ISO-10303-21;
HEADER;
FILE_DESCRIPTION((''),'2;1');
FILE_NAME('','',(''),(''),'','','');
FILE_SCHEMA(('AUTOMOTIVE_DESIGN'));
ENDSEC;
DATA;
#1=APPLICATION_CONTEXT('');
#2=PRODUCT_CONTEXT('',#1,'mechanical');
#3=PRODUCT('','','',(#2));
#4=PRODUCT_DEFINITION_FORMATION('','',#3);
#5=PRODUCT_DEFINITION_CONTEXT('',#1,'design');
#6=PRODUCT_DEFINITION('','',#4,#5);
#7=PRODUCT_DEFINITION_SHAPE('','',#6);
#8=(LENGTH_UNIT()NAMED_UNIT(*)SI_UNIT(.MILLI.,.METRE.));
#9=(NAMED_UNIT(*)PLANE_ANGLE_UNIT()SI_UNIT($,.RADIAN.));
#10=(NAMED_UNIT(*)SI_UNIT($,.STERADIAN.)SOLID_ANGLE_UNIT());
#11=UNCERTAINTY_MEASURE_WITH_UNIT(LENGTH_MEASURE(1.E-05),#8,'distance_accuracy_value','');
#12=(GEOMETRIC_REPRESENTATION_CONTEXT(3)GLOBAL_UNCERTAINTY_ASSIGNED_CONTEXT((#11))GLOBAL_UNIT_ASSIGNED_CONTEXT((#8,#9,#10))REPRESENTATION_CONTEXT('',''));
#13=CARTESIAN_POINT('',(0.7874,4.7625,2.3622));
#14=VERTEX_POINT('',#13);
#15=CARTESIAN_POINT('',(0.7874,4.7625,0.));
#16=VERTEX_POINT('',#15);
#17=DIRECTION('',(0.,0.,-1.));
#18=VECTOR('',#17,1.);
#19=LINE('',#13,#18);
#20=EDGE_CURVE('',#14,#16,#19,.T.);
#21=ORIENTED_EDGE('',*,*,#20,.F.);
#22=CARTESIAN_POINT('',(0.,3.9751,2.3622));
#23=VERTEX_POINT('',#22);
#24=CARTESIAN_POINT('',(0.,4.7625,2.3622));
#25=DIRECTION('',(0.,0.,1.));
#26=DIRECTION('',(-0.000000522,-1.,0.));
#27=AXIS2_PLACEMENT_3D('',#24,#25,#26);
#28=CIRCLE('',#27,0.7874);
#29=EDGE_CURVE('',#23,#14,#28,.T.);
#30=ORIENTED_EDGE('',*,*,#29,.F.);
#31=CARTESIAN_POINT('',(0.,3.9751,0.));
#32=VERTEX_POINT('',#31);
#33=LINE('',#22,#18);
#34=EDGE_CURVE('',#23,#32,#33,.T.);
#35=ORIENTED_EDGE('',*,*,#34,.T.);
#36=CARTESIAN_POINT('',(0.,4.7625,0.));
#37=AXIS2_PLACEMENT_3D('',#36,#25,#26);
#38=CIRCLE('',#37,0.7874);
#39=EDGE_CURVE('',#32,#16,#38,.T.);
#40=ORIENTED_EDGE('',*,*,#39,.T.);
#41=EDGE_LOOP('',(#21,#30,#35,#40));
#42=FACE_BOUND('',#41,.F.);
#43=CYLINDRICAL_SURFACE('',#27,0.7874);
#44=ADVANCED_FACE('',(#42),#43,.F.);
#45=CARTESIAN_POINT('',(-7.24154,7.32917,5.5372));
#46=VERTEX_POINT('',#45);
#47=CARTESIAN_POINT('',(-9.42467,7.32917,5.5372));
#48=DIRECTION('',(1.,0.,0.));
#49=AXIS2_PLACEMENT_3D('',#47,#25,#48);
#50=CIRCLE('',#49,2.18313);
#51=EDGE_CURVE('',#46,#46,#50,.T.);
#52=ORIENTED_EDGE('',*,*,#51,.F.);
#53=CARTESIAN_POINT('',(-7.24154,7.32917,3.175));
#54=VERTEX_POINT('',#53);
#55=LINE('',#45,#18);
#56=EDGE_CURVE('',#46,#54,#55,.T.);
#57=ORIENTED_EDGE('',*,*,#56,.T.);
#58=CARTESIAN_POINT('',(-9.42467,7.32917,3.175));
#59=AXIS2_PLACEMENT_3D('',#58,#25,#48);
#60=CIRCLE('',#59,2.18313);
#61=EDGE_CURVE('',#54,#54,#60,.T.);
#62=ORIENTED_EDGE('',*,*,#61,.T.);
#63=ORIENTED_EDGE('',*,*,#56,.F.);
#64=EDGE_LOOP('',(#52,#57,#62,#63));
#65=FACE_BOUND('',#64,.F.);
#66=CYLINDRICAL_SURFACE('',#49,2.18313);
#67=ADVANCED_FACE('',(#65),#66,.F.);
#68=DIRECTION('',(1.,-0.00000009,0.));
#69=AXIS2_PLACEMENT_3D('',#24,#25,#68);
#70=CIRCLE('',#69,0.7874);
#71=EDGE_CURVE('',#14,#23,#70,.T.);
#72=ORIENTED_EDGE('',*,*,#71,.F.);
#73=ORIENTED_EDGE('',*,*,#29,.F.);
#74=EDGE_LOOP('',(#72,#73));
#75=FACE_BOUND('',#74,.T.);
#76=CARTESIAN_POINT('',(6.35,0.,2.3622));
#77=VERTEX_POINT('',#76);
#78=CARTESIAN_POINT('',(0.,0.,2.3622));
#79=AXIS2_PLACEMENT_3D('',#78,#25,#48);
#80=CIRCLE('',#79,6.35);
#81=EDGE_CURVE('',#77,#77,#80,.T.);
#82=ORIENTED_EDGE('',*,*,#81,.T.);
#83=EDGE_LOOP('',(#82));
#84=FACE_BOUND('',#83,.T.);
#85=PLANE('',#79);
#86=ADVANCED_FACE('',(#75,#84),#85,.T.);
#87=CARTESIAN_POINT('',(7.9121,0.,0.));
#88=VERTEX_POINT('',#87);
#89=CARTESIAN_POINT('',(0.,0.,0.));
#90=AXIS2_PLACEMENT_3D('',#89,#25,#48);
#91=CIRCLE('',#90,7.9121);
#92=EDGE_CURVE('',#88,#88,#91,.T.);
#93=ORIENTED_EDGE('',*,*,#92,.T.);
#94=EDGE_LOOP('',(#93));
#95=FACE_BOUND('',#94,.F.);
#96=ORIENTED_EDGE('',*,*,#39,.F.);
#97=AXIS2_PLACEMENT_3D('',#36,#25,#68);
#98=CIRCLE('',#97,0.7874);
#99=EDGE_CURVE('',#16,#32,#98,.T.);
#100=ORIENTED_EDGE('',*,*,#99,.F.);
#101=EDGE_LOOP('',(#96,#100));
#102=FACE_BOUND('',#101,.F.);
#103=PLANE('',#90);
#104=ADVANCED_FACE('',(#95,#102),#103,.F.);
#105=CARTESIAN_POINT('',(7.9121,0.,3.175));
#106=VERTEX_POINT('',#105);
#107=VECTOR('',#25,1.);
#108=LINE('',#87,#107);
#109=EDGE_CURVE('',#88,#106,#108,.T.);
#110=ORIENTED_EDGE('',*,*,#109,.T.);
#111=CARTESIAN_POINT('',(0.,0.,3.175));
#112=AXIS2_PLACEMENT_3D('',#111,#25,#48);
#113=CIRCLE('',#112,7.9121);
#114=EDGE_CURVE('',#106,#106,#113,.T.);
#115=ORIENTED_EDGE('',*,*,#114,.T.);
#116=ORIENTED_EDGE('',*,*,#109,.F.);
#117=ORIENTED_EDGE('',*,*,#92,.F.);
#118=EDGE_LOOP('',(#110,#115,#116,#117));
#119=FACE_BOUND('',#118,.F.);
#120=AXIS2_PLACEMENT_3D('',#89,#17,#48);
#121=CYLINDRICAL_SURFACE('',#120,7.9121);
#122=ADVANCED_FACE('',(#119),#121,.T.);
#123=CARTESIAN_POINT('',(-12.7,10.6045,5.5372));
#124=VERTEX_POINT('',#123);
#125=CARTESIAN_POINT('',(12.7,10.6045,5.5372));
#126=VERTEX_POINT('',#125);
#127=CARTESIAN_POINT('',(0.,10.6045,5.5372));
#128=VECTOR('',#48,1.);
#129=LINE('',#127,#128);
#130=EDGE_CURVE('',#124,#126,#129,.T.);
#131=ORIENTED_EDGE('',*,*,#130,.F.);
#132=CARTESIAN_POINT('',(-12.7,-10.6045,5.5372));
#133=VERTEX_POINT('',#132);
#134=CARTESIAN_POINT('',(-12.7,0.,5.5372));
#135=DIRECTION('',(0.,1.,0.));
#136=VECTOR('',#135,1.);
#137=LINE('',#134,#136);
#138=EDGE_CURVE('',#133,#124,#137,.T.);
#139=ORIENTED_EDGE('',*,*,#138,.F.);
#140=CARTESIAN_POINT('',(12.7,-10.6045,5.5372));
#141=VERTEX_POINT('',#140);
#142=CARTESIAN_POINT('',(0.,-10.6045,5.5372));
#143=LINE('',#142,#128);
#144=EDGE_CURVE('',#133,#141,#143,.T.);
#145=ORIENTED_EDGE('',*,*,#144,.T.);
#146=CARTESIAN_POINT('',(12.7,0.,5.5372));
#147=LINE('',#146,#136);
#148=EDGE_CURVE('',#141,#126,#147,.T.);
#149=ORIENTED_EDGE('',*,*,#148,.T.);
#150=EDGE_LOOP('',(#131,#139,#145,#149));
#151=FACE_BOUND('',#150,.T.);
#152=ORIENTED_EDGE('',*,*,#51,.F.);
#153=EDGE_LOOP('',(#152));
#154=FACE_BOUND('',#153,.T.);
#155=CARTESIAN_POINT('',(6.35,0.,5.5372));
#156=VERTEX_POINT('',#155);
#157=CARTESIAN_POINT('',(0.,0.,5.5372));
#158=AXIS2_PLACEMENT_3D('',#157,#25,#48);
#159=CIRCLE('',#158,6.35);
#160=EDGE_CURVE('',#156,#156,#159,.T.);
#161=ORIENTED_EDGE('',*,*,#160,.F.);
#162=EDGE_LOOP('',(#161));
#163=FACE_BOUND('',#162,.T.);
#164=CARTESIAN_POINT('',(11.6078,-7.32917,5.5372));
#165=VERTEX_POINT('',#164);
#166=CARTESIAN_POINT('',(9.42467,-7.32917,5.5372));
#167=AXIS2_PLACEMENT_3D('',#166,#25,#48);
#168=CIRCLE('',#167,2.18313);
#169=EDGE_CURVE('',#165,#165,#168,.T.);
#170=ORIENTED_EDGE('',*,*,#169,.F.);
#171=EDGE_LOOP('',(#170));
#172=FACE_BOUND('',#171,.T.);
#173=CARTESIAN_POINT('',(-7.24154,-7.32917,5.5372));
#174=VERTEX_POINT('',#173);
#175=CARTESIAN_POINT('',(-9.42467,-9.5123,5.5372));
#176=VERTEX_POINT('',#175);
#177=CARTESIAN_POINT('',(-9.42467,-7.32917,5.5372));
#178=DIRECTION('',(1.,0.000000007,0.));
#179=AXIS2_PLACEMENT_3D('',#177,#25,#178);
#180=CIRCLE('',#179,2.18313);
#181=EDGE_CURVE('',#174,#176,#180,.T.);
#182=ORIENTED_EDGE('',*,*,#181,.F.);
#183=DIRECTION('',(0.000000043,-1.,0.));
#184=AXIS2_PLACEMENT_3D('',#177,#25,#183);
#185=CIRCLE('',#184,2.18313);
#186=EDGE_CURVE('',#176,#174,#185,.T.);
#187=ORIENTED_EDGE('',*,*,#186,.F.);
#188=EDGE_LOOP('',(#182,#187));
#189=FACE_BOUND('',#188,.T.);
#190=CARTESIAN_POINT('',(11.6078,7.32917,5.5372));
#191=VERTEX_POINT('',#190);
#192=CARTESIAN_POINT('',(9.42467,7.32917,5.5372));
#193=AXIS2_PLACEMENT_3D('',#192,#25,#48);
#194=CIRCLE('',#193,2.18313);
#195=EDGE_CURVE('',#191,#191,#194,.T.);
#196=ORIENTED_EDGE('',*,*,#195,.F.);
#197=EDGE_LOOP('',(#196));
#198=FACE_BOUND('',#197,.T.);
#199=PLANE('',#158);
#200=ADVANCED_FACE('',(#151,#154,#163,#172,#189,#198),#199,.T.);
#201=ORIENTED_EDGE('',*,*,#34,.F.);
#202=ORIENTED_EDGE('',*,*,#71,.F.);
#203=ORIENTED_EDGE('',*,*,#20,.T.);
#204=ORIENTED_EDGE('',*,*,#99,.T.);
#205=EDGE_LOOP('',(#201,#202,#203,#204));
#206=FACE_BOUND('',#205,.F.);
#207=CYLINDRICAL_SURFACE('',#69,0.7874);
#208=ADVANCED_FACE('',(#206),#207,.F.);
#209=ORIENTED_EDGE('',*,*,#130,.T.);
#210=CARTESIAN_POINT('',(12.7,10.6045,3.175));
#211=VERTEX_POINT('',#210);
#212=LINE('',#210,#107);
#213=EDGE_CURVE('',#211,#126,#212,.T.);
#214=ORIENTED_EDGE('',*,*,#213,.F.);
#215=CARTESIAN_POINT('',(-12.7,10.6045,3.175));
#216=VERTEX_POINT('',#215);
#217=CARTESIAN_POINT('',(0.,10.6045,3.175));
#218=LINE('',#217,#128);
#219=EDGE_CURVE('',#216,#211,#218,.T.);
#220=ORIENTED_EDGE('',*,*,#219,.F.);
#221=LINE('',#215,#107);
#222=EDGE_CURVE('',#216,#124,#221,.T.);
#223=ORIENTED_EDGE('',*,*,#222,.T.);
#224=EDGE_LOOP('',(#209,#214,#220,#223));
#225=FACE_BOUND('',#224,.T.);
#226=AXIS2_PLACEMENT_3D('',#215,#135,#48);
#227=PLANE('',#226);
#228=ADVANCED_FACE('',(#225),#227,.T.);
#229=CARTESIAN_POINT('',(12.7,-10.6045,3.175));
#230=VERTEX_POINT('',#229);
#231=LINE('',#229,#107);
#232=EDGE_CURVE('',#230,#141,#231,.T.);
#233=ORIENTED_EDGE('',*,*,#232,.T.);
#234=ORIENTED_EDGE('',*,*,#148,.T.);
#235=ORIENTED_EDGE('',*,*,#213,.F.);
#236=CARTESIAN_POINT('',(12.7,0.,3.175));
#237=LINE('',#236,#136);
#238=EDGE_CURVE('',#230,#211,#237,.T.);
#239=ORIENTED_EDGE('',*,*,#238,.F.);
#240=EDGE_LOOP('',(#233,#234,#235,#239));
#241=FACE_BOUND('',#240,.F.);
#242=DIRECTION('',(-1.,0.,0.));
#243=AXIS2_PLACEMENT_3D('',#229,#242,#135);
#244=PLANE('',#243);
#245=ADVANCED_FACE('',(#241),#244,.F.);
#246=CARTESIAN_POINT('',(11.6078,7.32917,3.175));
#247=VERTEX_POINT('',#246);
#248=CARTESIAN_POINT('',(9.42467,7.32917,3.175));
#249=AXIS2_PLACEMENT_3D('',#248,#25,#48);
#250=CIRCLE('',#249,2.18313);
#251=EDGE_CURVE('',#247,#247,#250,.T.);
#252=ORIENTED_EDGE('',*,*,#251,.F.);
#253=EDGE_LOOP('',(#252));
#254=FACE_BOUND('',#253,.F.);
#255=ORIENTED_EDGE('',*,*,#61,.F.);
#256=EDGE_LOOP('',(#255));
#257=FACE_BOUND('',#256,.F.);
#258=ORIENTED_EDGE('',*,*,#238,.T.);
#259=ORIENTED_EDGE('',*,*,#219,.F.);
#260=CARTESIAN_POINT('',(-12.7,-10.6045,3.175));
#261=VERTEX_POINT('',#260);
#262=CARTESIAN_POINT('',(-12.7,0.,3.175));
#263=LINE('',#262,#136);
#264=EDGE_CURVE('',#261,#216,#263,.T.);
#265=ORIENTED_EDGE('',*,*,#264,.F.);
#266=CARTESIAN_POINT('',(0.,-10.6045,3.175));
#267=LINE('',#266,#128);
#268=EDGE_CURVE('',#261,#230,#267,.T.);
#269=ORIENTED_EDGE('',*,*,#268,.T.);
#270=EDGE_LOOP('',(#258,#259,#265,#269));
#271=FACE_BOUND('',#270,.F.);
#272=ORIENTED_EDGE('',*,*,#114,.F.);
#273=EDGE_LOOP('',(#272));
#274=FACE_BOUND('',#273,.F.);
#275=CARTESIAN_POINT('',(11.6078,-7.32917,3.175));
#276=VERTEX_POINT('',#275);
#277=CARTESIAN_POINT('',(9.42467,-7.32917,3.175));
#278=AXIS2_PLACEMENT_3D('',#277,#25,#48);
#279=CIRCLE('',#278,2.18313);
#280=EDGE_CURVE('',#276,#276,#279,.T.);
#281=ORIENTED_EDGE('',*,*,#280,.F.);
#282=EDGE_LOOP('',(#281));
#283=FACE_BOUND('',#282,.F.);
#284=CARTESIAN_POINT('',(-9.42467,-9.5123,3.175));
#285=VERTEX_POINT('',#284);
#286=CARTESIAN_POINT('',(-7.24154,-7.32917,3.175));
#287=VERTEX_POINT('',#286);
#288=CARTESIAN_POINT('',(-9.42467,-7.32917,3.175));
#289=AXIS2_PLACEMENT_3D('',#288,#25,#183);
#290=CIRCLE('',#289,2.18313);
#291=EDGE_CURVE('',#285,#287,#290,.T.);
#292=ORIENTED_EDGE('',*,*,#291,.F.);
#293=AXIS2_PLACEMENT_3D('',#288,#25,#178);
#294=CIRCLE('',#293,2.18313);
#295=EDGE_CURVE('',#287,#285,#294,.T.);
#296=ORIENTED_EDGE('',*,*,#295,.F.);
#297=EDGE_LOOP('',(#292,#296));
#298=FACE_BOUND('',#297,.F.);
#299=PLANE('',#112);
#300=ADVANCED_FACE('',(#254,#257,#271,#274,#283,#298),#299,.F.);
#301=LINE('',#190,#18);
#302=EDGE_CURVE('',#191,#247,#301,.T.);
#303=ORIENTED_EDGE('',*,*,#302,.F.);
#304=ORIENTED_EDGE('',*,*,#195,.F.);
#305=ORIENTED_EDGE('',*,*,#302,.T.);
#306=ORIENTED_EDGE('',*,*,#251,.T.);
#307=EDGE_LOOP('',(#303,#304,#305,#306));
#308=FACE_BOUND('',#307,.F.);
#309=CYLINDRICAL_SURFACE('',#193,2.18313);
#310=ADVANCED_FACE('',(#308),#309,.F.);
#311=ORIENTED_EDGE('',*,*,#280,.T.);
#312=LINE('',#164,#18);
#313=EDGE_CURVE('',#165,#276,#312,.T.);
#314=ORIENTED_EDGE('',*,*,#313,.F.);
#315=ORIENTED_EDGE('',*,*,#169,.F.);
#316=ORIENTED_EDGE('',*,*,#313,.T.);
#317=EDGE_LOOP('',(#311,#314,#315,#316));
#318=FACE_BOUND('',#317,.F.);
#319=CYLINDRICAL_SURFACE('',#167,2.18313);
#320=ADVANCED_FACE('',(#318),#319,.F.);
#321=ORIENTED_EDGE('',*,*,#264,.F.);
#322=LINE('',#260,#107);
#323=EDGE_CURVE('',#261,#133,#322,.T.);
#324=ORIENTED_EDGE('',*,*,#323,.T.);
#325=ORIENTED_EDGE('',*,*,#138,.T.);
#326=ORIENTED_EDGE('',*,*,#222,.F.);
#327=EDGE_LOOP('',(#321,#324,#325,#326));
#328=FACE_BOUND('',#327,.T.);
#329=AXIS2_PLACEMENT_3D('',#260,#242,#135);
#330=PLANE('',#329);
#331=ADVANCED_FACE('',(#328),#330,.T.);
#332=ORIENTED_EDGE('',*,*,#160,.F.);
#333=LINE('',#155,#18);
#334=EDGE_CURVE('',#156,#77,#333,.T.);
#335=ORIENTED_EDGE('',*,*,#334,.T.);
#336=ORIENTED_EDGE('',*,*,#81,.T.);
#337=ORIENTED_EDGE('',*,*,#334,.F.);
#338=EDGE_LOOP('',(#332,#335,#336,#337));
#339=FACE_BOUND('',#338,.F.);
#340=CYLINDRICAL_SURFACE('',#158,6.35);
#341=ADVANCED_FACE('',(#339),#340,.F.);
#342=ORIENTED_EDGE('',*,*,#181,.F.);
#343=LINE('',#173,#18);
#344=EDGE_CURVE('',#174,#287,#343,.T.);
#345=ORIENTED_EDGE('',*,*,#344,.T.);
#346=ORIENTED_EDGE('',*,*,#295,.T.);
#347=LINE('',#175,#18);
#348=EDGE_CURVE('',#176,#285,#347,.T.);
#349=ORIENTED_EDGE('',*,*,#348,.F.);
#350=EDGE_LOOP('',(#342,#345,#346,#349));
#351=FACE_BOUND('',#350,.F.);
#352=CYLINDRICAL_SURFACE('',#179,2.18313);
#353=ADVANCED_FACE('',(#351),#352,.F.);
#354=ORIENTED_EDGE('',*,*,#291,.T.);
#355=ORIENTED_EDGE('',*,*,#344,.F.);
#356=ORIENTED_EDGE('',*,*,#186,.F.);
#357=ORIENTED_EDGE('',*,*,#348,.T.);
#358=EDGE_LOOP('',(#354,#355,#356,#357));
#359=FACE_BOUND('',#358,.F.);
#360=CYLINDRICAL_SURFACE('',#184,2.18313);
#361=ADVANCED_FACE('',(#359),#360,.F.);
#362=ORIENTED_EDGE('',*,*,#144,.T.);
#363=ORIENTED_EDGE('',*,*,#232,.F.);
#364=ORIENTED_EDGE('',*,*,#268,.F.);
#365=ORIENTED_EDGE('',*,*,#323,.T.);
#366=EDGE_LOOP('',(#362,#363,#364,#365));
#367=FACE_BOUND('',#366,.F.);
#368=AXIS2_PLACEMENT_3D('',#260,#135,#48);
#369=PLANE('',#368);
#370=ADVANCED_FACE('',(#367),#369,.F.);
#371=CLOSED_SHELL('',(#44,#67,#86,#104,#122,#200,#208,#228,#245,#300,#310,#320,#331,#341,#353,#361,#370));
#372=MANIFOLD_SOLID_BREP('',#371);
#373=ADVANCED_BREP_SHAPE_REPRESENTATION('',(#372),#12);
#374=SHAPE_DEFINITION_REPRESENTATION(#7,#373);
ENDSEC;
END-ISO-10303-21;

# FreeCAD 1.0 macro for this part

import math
import FreeCAD as App
import Part
import Sketcher
from FreeCAD import Vector
Q = App.Units.Quantity


def add_polygon(sketch, points):
    """Adds a closed chain of lines whose ends are joined by coincident constraints."""
    first, n = sketch.GeometryCount, len(points)
    for a, b in zip(points, points[1:] + points[:1]):
        sketch.addGeometry(Part.LineSegment(App.Vector(*a, 0), App.Vector(*b, 0)), False)
    for i in range(n):
        sketch.addConstraint(Sketcher.Constraint("Coincident", first + i, 2, first + (i + 1) % n, 1))

doc = App.newDocument("Part")
body = doc.addObject("PartDesign::Body", "Body")

# Sketch on XY plane
sketch1 = body.newObject("Sketcher::SketchObject", "Sketch")
sketch1.AttachmentSupport = (doc.getObject("XY_Plane"), [""])
sketch1.MapMode = "FlatFace"
sketch1.addGeometry(Part.Circle(Vector(0, 0, 0), Vector(0, 0, 1), 8), False)
sketch1.addConstraint(Sketcher.Constraint("Coincident", 0, 3, -1, 1))
sketch1.addConstraint(Sketcher.Constraint("Diameter", 0, Q("0.623 in")))
pad1 = body.newObject("PartDesign::Pad", "Pad")
pad1.Profile = sketch1
pad1.Length = Q("0.125 in")

# Sketch on XY plane
sketch2 = body.newObject("Sketcher::SketchObject", "Sketch001")
sketch2.AttachmentSupport = (doc.getObject("XY_Plane"), [""])
sketch2.MapMode = "FlatFace"
sketch2.AttachmentOffset = App.Placement(Vector(0, 0, 0.125 * 25.4), App.Rotation())
add_polygon(sketch2, [(-13, 11), (-13, -11), (13, -11), (13, 11)])  # lines 0-3
sketch2.addConstraint(Sketcher.Constraint("Vertical", 0))
sketch2.addConstraint(Sketcher.Constraint("Horizontal", 1))
sketch2.addConstraint(Sketcher.Constraint("Vertical", 2))
sketch2.addConstraint(Sketcher.Constraint("Horizontal", 3))
sketch2.addConstraint(Sketcher.Constraint("Symmetric", 0, 2, 2, 2, -1, 1))
sketch2.addConstraint(Sketcher.Constraint("DistanceX", 1, 1, 1, 2, Q("1 in")))
sketch2.addConstraint(Sketcher.Constraint("DistanceY", 0, 2, 0, 1, Q("0.835 in")))
pad2 = body.newObject("PartDesign::Pad", "Pad001")
pad2.Profile = sketch2
pad2.Length = Q("0.093 in")

# Sketch on XY plane
sketch3 = body.newObject("Sketcher::SketchObject", "Sketch002")
sketch3.AttachmentSupport = (doc.getObject("XY_Plane"), [""])
sketch3.MapMode = "FlatFace"
sketch3.AttachmentOffset = App.Placement(Vector(0, 0, 0.218 * 25.4), App.Rotation())
sketch3.addGeometry(Part.Circle(Vector(0, 0, 0), Vector(0, 0, 1), 6), False)
sketch3.addConstraint(Sketcher.Constraint("Coincident", 0, 3, -1, 1))
sketch3.addConstraint(Sketcher.Constraint("Diameter", 0, Q("0.5 in")))
pocket1 = body.newObject("PartDesign::Pocket", "Pocket")
pocket1.Profile = sketch3
pocket1.Length = Q("0.125 in")

# Sketch on XY plane
sketch4 = body.newObject("Sketcher::SketchObject", "Sketch003")
sketch4.AttachmentSupport = (doc.getObject("XY_Plane"), [""])
sketch4.MapMode = "FlatFace"
sketch4.AttachmentOffset = App.Placement(Vector(0, 0, 0.093 * 25.4), App.Rotation())
sketch4.addGeometry(Part.ArcOfCircle(Part.Circle(Vector(0, 4.8, 0), Vector(0, 0, 1), 0.8), math.radians(-90), math.radians(0)), False)
sketch4.addGeometry(Part.ArcOfCircle(Part.Circle(Vector(0, 4.8, 0), Vector(0, 0, 1), 0.8), math.radians(0), math.radians(270)), False)
sketch4.addConstraint(Sketcher.Constraint("Tangent", 0, 1, 1, 2))
sketch4.addConstraint(Sketcher.Constraint("Coincident", 1, 1, 0, 2))
sketch4.addConstraint(Sketcher.Constraint("PointOnObject", 0, 3, -2))
sketch4.addConstraint(Sketcher.Constraint("PointOnObject", 0, 1, -2))
sketch4.addConstraint(Sketcher.Constraint("Horizontal", 0, 3, 1, 1))
sketch4.addConstraint(Sketcher.Constraint("Radius", 0, Q("0.031 in")))
sketch4.addConstraint(Sketcher.Constraint("DistanceY", -1, 1, 0, 3, Q("0.1875 in")))
pocket2 = body.newObject("PartDesign::Pocket", "Pocket001")
pocket2.Profile = sketch4
pocket2.Type = "ThroughAll"

# Sketch on XY plane
sketch5 = body.newObject("Sketcher::SketchObject", "Sketch004")
sketch5.AttachmentSupport = (doc.getObject("XY_Plane"), [""])
sketch5.MapMode = "FlatFace"
sketch5.AttachmentOffset = App.Placement(Vector(0, 0, 0.218 * 25.4), App.Rotation())
sketch5.addGeometry(Part.Circle(Vector(9.4, 7.3, 0), Vector(0, 0, 1), 2.2), False)
sketch5.addGeometry(Part.Circle(Vector(-9.4, 7.3, 0), Vector(0, 0, 1), 2.2), False)
sketch5.addGeometry(Part.ArcOfCircle(Part.Circle(Vector(-9.4, -7.3, 0), Vector(0, 0, 1), 2.2), math.radians(-90), math.radians(0)), False)
sketch5.addGeometry(Part.ArcOfCircle(Part.Circle(Vector(-9.4, -7.3, 0), Vector(0, 0, 1), 2.2), math.radians(0), math.radians(270)), False)
sketch5.addGeometry(Part.Circle(Vector(9.4, -7.3, 0), Vector(0, 0, 1), 2.2), False)
sketch5.addConstraint(Sketcher.Constraint("Tangent", 2, 1, 3, 2))
sketch5.addConstraint(Sketcher.Constraint("Coincident", 3, 1, 2, 2))
sketch5.addConstraint(Sketcher.Constraint("Equal", 0, 1))
sketch5.addConstraint(Sketcher.Constraint("Equal", 1, 2))
sketch5.addConstraint(Sketcher.Constraint("Equal", 3, 4))
sketch5.addConstraint(Sketcher.Constraint("Symmetric", 0, 3, 2, 3, -1, 1))
sketch5.addConstraint(Sketcher.Constraint("Symmetric", 1, 3, 4, 3, -1, 1))
sketch5.addConstraint(Sketcher.Constraint("Symmetric", 0, 3, 1, 3, -2))
sketch5.addConstraint(Sketcher.Constraint("Horizontal", 4, 3, 3, 1))
sketch5.addConstraint(Sketcher.Constraint("Vertical", 3, 3, 2, 1))
sketch5.addConstraint(Sketcher.Constraint("Diameter", 0, Q("0.1719 in")))
sketch5.addConstraint(Sketcher.Constraint("DistanceY", 2, 1, -1, 1, Q("0.3745 in")))
sketch5.addConstraint(Sketcher.Constraint("DistanceX", 3, 1, -1, 1, Q("0.2851 in")))
pocket3 = body.newObject("PartDesign::Pocket", "Pocket002")
pocket3.Profile = sketch5
pocket3.Type = "ThroughAll"

doc.recompute()
